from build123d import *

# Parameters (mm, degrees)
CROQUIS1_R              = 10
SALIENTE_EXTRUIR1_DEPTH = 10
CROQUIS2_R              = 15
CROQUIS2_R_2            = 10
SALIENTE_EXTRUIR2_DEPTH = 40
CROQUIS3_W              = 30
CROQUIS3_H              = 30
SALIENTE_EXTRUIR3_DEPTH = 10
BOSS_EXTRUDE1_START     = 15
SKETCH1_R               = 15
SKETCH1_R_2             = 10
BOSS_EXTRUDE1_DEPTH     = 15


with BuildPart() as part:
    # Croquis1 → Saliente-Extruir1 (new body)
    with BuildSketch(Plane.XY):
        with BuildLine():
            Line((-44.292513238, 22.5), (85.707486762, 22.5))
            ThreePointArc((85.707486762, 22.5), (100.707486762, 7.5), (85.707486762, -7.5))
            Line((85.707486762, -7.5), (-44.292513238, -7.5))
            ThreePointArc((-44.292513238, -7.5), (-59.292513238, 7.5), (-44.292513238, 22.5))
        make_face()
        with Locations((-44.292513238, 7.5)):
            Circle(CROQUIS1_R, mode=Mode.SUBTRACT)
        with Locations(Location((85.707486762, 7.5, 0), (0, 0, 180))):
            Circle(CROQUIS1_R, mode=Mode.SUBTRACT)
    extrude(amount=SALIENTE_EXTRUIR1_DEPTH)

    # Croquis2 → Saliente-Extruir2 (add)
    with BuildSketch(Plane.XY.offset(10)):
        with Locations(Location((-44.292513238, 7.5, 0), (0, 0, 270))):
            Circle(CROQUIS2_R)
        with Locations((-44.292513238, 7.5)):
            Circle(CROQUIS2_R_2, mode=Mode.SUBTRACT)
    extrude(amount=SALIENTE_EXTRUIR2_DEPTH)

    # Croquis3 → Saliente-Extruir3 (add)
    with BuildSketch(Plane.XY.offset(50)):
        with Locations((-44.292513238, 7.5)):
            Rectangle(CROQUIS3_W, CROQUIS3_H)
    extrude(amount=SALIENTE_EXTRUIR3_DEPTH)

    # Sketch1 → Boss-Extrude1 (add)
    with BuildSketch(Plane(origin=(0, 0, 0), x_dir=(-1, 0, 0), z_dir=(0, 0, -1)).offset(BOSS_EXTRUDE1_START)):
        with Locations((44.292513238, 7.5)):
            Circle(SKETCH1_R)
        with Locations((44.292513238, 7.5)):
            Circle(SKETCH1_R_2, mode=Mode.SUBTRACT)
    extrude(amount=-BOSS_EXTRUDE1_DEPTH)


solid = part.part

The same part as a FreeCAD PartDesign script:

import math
import FreeCAD as App
import Part
import Sketcher


def add_polygon(sketch, points):
    """Adds a closed chain of lines whose ends are joined by coincident constraints."""
    first, n = sketch.GeometryCount, len(points)
    for a, b in zip(points, points[1:] + points[:1]):
        sketch.addGeometry(Part.LineSegment(App.Vector(*a, 0), App.Vector(*b, 0)), False)
    for i in range(n):
        sketch.addConstraint(Sketcher.Constraint("Coincident", first + i, 2, first + (i + 1) % n, 1))

doc = App.newDocument("Part")
body = doc.addObject("PartDesign::Body", "Body")

sketch1 = body.newObject("Sketcher::SketchObject", "Sketch")
sketch1.AttachmentSupport = (doc.getObject("XY_Plane"), [""])
sketch1.MapMode = "FlatFace"
sketch1.addGeometry([
    Part.LineSegment(App.Vector(85.707487, 22.5, 0), App.Vector(-44.292513, 22.5, 0)),
    Part.ArcOfCircle(Part.Circle(App.Vector(-44.292513, 7.5, 0), App.Vector(0, 0, 1), 15), math.radians(90), math.radians(270)),
    Part.LineSegment(App.Vector(-44.292513, -7.5, 0), App.Vector(85.707487, -7.5, 0)),
    Part.ArcOfCircle(Part.Circle(App.Vector(85.707487, 7.5, 0), App.Vector(0, 0, 1), 15), math.radians(-90), math.radians(90)),
    Part.Circle(App.Vector(85.707487, 7.5, 0), App.Vector(0, 0, 1), 10),
    Part.Circle(App.Vector(-44.292513, 7.5, 0), App.Vector(0, 0, 1), 10),
], False)
sketch1.addConstraint([
    Sketcher.Constraint("Tangent", 0, 2, 1, 1),
    Sketcher.Constraint("Tangent", 1, 2, 2, 1),
    Sketcher.Constraint("Tangent", 2, 2, 3, 1),
    Sketcher.Constraint("Tangent", 3, 2, 0, 1),
    Sketcher.Constraint("Horizontal", 0),
    Sketcher.Constraint("Horizontal", 2),
    Sketcher.Constraint("Coincident", 4, 3, 3, 3),
    Sketcher.Constraint("Coincident", 5, 3, 1, 3),
    Sketcher.Constraint("Equal", 4, 5),
    Sketcher.Constraint("Diameter", 4, 20.0),
    Sketcher.Constraint("Radius", 1, 15.0),
    Sketcher.Constraint("DistanceX", 0, 2, 0, 1, 130.0),
    Sketcher.Constraint("DistanceY", -1, 1, 1, 3, 7.5),
    Sketcher.Constraint("DistanceX", 1, 3, -1, 1, 44.292513),
])
pad1 = body.newObject("PartDesign::Pad", "Pad")
pad1.Profile = sketch1
pad1.Length = 10

sketch2 = body.newObject("Sketcher::SketchObject", "Sketch001")
sketch2.AttachmentSupport = (doc.getObject("XY_Plane"), [""])
sketch2.MapMode = "FlatFace"
sketch2.AttachmentOffset = App.Placement(App.Vector(0, 0, 10), App.Rotation())
sketch2.addGeometry([
    Part.Circle(App.Vector(-44.292513, 7.5, 0), App.Vector(0, 0, 1), 15),
    Part.Circle(App.Vector(-44.292513, 7.5, 0), App.Vector(0, 0, 1), 10),
], False)
sketch2.addConstraint([
    Sketcher.Constraint("Coincident", 1, 3, 0, 3),
    Sketcher.Constraint("Diameter", 0, 30.0),
    Sketcher.Constraint("Diameter", 1, 20.0),
    Sketcher.Constraint("DistanceY", -1, 1, 0, 3, 7.5),
    Sketcher.Constraint("DistanceX", 0, 3, -1, 1, 44.292513),
])
pad2 = body.newObject("PartDesign::Pad", "Pad001")
pad2.Profile = sketch2
pad2.Length = 40

sketch3 = body.newObject("Sketcher::SketchObject", "Sketch002")
sketch3.AttachmentSupport = (doc.getObject("XY_Plane"), [""])
sketch3.MapMode = "FlatFace"
sketch3.AttachmentOffset = App.Placement(App.Vector(0, 0, 50), App.Rotation())
add_polygon(sketch3, [(-59.292513, 22.5), (-59.292513, -7.5), (-29.292513, -7.5), (-29.292513, 22.5)])
sketch3.addConstraint([
    Sketcher.Constraint("Vertical", 0),
    Sketcher.Constraint("Horizontal", 1),
    Sketcher.Constraint("Vertical", 2),
    Sketcher.Constraint("Horizontal", 3),
    Sketcher.Constraint("Equal", 3, 0),
    Sketcher.Constraint("DistanceX", 1, 1, 1, 2, 30.0),
    Sketcher.Constraint("DistanceY", 0, 2, -1, 1, 7.5),
    Sketcher.Constraint("DistanceX", 0, 2, -1, 1, 59.292513),
])
pad3 = body.newObject("PartDesign::Pad", "Pad002")
pad3.Profile = sketch3
pad3.Length = 10

sketch4 = body.newObject("Sketcher::SketchObject", "Sketch003")
sketch4.AttachmentSupport = (doc.getObject("XY_Plane"), [""])
sketch4.MapMode = "FlatFace"
sketch4.AttachmentOffset = App.Placement(App.Vector(0, 0, -15), App.Rotation())
sketch4.addGeometry([
    Part.Circle(App.Vector(-44.292513, 7.5, 0), App.Vector(0, 0, 1), 15),
    Part.Circle(App.Vector(-44.292513, 7.5, 0), App.Vector(0, 0, 1), 10),
], False)
sketch4.addConstraint([
    Sketcher.Constraint("Coincident", 1, 3, 0, 3),
    Sketcher.Constraint("Diameter", 0, 30.0),
    Sketcher.Constraint("Diameter", 1, 20.0),
    Sketcher.Constraint("DistanceY", -1, 1, 0, 3, 7.5),
    Sketcher.Constraint("DistanceX", 0, 3, -1, 1, 44.292513),
])
pad4 = body.newObject("PartDesign::Pad", "Pad003")
pad4.Profile = sketch4
pad4.Length = 15

doc.recompute()
